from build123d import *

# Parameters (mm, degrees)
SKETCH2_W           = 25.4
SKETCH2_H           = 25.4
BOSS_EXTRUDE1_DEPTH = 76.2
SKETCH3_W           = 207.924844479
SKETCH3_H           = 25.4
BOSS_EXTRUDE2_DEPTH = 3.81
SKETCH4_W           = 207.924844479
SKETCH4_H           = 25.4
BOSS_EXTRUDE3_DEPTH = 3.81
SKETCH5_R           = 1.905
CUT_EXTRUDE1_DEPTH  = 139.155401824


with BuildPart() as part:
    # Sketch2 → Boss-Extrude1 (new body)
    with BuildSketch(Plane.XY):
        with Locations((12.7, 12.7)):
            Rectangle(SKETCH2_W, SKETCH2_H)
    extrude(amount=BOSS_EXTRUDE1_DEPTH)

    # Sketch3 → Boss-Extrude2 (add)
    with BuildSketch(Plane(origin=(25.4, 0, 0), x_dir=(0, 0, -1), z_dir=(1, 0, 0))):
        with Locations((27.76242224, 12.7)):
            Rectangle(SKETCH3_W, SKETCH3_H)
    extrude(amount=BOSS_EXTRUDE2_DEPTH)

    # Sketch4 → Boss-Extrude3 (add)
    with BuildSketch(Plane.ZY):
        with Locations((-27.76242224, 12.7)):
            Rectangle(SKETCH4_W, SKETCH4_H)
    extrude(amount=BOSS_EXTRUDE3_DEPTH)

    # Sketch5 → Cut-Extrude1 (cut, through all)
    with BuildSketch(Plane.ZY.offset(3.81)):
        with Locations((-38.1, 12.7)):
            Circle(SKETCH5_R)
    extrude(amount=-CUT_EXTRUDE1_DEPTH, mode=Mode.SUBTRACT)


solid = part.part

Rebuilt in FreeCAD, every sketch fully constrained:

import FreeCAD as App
import Part
import Sketcher
from FreeCAD import Vector
Q = App.Units.Quantity


def add_polygon(sketch, points):
    """Adds a closed chain of lines whose ends are joined by coincident constraints."""
    first, n = sketch.GeometryCount, len(points)
    for a, b in zip(points, points[1:] + points[:1]):
        sketch.addGeometry(Part.LineSegment(App.Vector(*a, 0), App.Vector(*b, 0)), False)
    for i in range(n):
        sketch.addConstraint(Sketcher.Constraint("Coincident", first + i, 2, first + (i + 1) % n, 1))

doc = App.newDocument("Part")
body = doc.addObject("PartDesign::Body", "Body")

sketch1 = doc.addObject("Sketcher::SketchObject", "Sketch")
body.addObject(sketch1)
sketch1.AttachmentSupport = (doc.XY_Plane, [""])
sketch1.MapMode = "FlatFace"
add_polygon(sketch1, [(0, 25), (0, 0), (25, 0), (25, 25)])
sketch1.addConstraint([
    Sketcher.Constraint("Vertical", 0),
    Sketcher.Constraint("Horizontal", 1),
    Sketcher.Constraint("Vertical", 2),
    Sketcher.Constraint("Horizontal", 3),
    Sketcher.Constraint("Coincident", 0, 2, -1, 1),
    Sketcher.Constraint("Equal", 3, 0),
    Sketcher.Constraint("DistanceX", 1, 1, 1, 2, Q("1 in")),
])
pad1 = doc.addObject("PartDesign::Pad", "Pad")
body.addObject(pad1)
pad1.Profile = sketch1
pad1.Length = Q("3 in")

sketch2 = doc.addObject("Sketcher::SketchObject", "Sketch001")
body.addObject(sketch2)
sketch2.AttachmentSupport = (doc.YZ_Plane, [""])
sketch2.MapMode = "FlatFace"
sketch2.AttachmentOffset = App.Placement(Vector(0, 0, 1 * 25.4), App.Rotation())
add_polygon(sketch2, [(25, 76), (0, 76), (0, -132), (25, -132)])
sketch2.addConstraint([
    Sketcher.Constraint("Horizontal", 0),
    Sketcher.Constraint("Vertical", 1),
    Sketcher.Constraint("Horizontal", 2),
    Sketcher.Constraint("Vertical", 3),
    Sketcher.Constraint("PointOnObject", 0, 2, -2),
    Sketcher.Constraint("DistanceX", 0, 2, 0, 1, Q("1 in")),
    Sketcher.Constraint("DistanceY", -1, 1, 0, 2, Q("3 in")),
    Sketcher.Constraint("DistanceY", 1, 2, 1, 1, 207.924844),
])
pad2 = doc.addObject("PartDesign::Pad", "Pad001")
body.addObject(pad2)
pad2.Profile = sketch2
pad2.Length = Q("0.15 in")

sketch3 = doc.addObject("Sketcher::SketchObject", "Sketch002")
body.addObject(sketch3)
sketch3.AttachmentSupport = (doc.YZ_Plane, [""])
sketch3.MapMode = "FlatFace"
add_polygon(sketch3, [(25, -132), (0, -132), (0, 76), (25, 76)])
sketch3.addConstraint([
    Sketcher.Constraint("Horizontal", 0),
    Sketcher.Constraint("Vertical", 1),
    Sketcher.Constraint("Horizontal", 2),
    Sketcher.Constraint("Vertical", 3),
    Sketcher.Constraint("PointOnObject", 0, 2, -2),
    Sketcher.Constraint("DistanceX", 0, 2, 0, 1, Q("1 in")),
    Sketcher.Constraint("DistanceY", -1, 1, 1, 2, Q("3 in")),
    Sketcher.Constraint("DistanceY", 1, 1, 1, 2, 207.924844),
])
pad3 = doc.addObject("PartDesign::Pad", "Pad002")
body.addObject(pad3)
pad3.Profile = sketch3
pad3.Length = Q("0.15 in")
pad3.Reversed = True

sketch4 = doc.addObject("Sketcher::SketchObject", "Sketch003")
body.addObject(sketch4)
sketch4.AttachmentSupport = (doc.YZ_Plane, [""])
sketch4.MapMode = "FlatFace"
sketch4.AttachmentOffset = App.Placement(Vector(0, 0, -0.15 * 25.4), App.Rotation())
sketch4.addGeometry(Part.Circle(Vector(12.7, -38.1, 0), Vector(0, 0, 1), 1.9), False)
sketch4.addConstraint([
    Sketcher.Constraint("Diameter", 0, Q("0.15 in")),
    Sketcher.Constraint("DistanceX", -1, 1, 0, 3, Q("0.5 in")),
    Sketcher.Constraint("DistanceY", 0, 3, -1, 1, Q("1.5 in")),
])
pocket1 = doc.addObject("PartDesign::Pocket", "Pocket")
body.addObject(pocket1)
pocket1.Profile = sketch4
pocket1.Type = "ThroughAll"
pocket1.Reversed = True

doc.recompute()
